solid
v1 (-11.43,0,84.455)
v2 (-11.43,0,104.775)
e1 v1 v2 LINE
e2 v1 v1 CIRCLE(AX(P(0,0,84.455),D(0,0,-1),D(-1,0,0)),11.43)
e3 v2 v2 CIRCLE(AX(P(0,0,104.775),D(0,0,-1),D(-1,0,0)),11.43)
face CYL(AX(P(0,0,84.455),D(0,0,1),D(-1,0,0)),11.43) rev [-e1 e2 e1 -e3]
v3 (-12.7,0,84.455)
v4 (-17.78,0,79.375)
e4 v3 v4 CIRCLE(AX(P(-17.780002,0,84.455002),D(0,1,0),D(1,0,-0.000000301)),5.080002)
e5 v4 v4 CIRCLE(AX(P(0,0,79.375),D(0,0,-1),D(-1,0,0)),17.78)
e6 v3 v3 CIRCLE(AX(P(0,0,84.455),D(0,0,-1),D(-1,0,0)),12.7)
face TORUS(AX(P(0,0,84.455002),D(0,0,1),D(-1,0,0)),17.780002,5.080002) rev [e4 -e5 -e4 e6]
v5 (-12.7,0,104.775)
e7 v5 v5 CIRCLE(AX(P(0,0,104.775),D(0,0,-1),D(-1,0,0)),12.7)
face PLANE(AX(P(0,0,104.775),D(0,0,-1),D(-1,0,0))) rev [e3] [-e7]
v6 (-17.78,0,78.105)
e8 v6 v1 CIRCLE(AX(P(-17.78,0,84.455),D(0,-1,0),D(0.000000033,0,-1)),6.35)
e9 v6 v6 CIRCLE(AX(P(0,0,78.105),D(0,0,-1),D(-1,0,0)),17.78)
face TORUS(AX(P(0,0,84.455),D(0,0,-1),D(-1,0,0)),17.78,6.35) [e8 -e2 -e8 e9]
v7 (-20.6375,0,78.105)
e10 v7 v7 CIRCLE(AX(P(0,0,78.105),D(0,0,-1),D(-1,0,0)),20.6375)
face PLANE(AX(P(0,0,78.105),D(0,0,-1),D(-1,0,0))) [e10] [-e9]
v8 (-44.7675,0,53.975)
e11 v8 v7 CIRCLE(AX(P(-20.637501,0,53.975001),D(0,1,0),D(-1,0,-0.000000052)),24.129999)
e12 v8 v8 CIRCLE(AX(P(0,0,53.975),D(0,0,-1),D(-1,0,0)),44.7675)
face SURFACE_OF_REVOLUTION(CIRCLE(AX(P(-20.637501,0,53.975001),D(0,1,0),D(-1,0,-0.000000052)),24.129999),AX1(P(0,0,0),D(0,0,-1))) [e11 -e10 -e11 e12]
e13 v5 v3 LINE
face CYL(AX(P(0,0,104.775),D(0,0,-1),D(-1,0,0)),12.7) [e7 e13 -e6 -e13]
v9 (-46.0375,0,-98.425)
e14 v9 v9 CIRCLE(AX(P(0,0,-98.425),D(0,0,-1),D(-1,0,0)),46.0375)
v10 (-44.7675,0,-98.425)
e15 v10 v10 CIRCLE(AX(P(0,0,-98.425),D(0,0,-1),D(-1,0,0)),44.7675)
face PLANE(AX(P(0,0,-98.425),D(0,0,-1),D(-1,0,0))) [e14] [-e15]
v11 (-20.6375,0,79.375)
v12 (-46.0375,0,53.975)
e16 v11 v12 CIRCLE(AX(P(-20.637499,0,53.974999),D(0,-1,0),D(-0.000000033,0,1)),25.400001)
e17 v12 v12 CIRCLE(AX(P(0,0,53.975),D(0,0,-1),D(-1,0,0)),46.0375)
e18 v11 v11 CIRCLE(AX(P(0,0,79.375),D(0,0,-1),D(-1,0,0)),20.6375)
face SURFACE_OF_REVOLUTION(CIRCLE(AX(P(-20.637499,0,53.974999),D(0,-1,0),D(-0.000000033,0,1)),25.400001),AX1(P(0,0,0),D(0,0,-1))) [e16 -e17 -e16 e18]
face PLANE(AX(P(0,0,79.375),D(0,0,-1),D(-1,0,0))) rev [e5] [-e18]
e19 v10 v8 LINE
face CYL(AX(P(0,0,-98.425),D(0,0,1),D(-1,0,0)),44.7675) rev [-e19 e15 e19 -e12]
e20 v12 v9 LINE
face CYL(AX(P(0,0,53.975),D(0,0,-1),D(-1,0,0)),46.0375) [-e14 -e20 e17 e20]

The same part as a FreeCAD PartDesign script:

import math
import FreeCAD as App
import Part
import Sketcher

V = App.Vector
Q = App.Units.Quantity

doc = App.newDocument("Part")
params = doc.addObject("Spreadsheet::Sheet", "Params")
for row, (alias, value) in enumerate([
    ("sketch1_radius", "1 in"),
    ("sketch1_radius2", "0.2000001 in"),
    ("sketch1_height", "6 in"),
    ("sketch1_radius3", "0.95 in"),
    ("sketch1_height2", "0.8 in"),
    ("revolution_angle", "360 deg"),
], start=1):
    params.set(f"A{row}", alias)
    params.set(f"B{row}", "=" + value)
    params.setAlias(f"B{row}", alias)

body = doc.addObject("PartDesign::Body", "Body")

sketch1 = doc.addObject("Sketcher::SketchObject", "Sketch")
body.addObject(sketch1)
sketch1.AttachmentSupport = (doc.XZ_Plane, [""])
sketch1.MapMode = "FlatFace"
sketch1.addGeometry([
    Part.LineSegment(V(-11.4, 84.5, 0), V(-11.4, 104.8, 0)),
    Part.LineSegment(V(-11.4, 104.8, 0), V(-12.7, 104.8, 0)),
    Part.LineSegment(V(-12.7, 104.8, 0), V(-12.7, 84.5, 0)),
    Part.ArcOfCircle(Part.Circle(V(-17.8, 84.5, 0), V(0, 0, 1), 5.1), math.radians(-90), math.radians(0)),
    Part.LineSegment(V(-17.8, 79.4, 0), V(-20.6, 79.4, 0)),
    Part.ArcOfCircle(Part.Circle(V(-20.6, 54, 0), V(0, 0, 1), 25.4), math.radians(90), math.radians(180)),
    Part.LineSegment(V(-46, 54, 0), V(-46, -98.4, 0)),
    Part.LineSegment(V(-46, -98.4, 0), V(-44.8, -98.4, 0)),
    Part.LineSegment(V(-44.8, -98.4, 0), V(-44.8, 54, 0)),
    Part.ArcOfCircle(Part.Circle(V(-20.6, 54, 0), V(0, 0, 1), 24.1), math.radians(90), math.radians(180)),
    Part.LineSegment(V(-20.6, 78.1, 0), V(-17.8, 78.1, 0)),
    Part.ArcOfCircle(Part.Circle(V(-17.8, 84.5, 0), V(0, 0, 1), 6.4), math.radians(-90), math.radians(0)),
], False)
sketch1.addConstraint([
    Sketcher.Constraint("Coincident", 0, 2, 1, 1),
    Sketcher.Constraint("Coincident", 1, 2, 2, 1),
    Sketcher.Constraint("Tangent", 2, 2, 3, 2),
    Sketcher.Constraint("Tangent", 3, 1, 4, 1),
    Sketcher.Constraint("Tangent", 4, 2, 5, 1),
    Sketcher.Constraint("Tangent", 5, 2, 6, 1),
    Sketcher.Constraint("Coincident", 6, 2, 7, 1),
    Sketcher.Constraint("Coincident", 7, 2, 8, 1),
    Sketcher.Constraint("Tangent", 8, 2, 9, 2),
    Sketcher.Constraint("Tangent", 9, 1, 10, 1),
    Sketcher.Constraint("Tangent", 10, 2, 11, 1),
    Sketcher.Constraint("Tangent", 11, 2, 0, 1),
    Sketcher.Constraint("Vertical", 0),
    Sketcher.Constraint("Horizontal", 1),
    Sketcher.Constraint("Vertical", 2),
    Sketcher.Constraint("Horizontal", 4),
    Sketcher.Constraint("Vertical", 6),
    Sketcher.Constraint("Horizontal", 7),
    Sketcher.Constraint("Vertical", 8),
    Sketcher.Constraint("Horizontal", 10),
    Sketcher.Constraint("Coincident", 9, 3, 5, 3),
    Sketcher.Constraint("Coincident", 11, 3, 3, 3),
    Sketcher.Constraint("Radius", 5, Q("1 in")),
    Sketcher.Constraint("Radius", 3, Q("0.2000001 in")),
    Sketcher.Constraint("DistanceY", 6, 2, 6, 1, Q("6 in")),
    Sketcher.Constraint("Radius", 9, Q("0.95 in")),
    Sketcher.Constraint("DistanceY", 0, 1, 0, 2, Q("0.8 in")),
    Sketcher.Constraint("DistanceX", 3, 3, -1, 1, Q("0.7000001 in")),
    Sketcher.Constraint("DistanceX", 4, 2, 4, 1, Q("0.1125 in")),
    Sketcher.Constraint("DistanceY", -1, 1, 3, 3, Q("3.3250001 in")),
])
sketch1.setExpression("Constraints[22]", "Params.sketch1_radius")
sketch1.setExpression("Constraints[23]", "Params.sketch1_radius2")
sketch1.setExpression("Constraints[24]", "Params.sketch1_height")
sketch1.setExpression("Constraints[25]", "Params.sketch1_radius3")
sketch1.setExpression("Constraints[26]", "Params.sketch1_height2")
revolution = doc.addObject("PartDesign::Revolution", "Revolution")
body.addObject(revolution)
revolution.Profile = sketch1
revolution.ReferenceAxis = (sketch1, ["V_Axis"])
revolution.setExpression("Angle", "Params.revolution_angle")

doc.recompute()
